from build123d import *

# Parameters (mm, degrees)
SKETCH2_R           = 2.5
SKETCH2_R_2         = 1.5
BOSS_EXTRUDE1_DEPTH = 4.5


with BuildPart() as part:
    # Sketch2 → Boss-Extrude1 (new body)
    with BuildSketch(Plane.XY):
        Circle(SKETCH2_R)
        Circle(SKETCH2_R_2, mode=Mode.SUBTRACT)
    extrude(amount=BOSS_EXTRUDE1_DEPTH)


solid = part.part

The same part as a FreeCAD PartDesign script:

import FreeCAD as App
import Part
import Sketcher

V = App.Vector
Q = App.Units.Quantity

doc = App.newDocument("Part")
body = doc.addObject("PartDesign::Body", "Body")

# Sketch on XY plane
sketch1 = doc.addObject("Sketcher::SketchObject", "Sketch")
body.addObject(sketch1)
sketch1.AttachmentSupport = (doc.XY_Plane, [""])
sketch1.MapMode = "FlatFace"
sketch1.addGeometry([
    Part.Circle(V(0, 0, 0), V(0, 0, 1), 2.5),
    Part.Circle(V(0, 0, 0), V(0, 0, 1), 1.5),
], False)
sketch1.addConstraint([
    Sketcher.Constraint("Coincident", 0, 3, -1, 1),
    Sketcher.Constraint("Coincident", 1, 3, -1, 1),
    Sketcher.Constraint("Diameter", 0, Q("5 mm")),
    Sketcher.Constraint("Diameter", 1, Q("3 mm")),
])
pad1 = doc.addObject("PartDesign::Pad", "Pad")
body.addObject(pad1)
pad1.Profile = sketch1
pad1.Length = 4.5

doc.recompute()
